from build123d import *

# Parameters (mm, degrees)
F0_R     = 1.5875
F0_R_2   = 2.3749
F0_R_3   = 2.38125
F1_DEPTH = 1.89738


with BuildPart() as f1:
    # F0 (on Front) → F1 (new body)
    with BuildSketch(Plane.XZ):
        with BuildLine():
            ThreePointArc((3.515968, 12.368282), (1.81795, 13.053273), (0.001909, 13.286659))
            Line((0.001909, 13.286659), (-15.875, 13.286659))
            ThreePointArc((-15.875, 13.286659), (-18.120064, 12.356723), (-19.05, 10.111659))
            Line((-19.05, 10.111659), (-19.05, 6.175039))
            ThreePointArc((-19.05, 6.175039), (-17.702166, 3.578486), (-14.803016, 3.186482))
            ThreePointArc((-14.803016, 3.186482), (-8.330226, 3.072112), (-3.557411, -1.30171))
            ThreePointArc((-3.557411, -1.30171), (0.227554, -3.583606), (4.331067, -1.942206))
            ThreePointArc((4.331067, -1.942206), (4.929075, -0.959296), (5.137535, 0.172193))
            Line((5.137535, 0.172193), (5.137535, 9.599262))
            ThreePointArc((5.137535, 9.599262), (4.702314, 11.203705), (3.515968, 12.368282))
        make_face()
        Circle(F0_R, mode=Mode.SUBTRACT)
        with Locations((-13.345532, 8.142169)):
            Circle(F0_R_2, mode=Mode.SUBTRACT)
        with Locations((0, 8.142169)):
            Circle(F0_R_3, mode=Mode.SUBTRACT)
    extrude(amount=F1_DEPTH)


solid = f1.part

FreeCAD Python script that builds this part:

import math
import FreeCAD as App
import Part
import Sketcher
from FreeCAD import Vector
Q = App.Units.Quantity

doc = App.newDocument("Part")
body = doc.addObject("PartDesign::Body", "Body")

# Sketch on XZ plane
sketch1 = body.newObject("Sketcher::SketchObject", "Sketch")
sketch1.AttachmentSupport = (doc.getObject("XZ_Plane"), [""])
sketch1.MapMode = "FlatFace"
sketch1.addGeometry(Part.ArcOfCircle(Part.Circle(Vector(0.001909, 6.10441, 0), Vector(0, 0, 1), 7.182249), math.radians(60.707391), math.radians(90.000003)), False)
sketch1.addGeometry(Part.LineSegment(Vector(0.001909, 13.286659, 0), Vector(-15.875, 13.286659, 0)), False)
sketch1.addGeometry(Part.ArcOfCircle(Part.Circle(Vector(-15.875, 10.111659, 0), Vector(0, 0, 1), 3.175), math.radians(90.000002), math.radians(179.999998)), False)
sketch1.addGeometry(Part.LineSegment(Vector(-19.05, 10.111659, 0), Vector(-19.05, 6.175039, 0)), False)
sketch1.addGeometry(Part.ArcOfCircle(Part.Circle(Vector(-15.875, 6.175039, 0), Vector(0, 0, 1), 3.175), math.radians(-179.999994), math.radians(-70.267285)), False)
sketch1.addGeometry(Part.ArcOfCircle(Part.Circle(Vector(-11.717598, -5.41528, 0), Vector(0, 0, 1), 9.138387), math.radians(26.752783), math.radians(109.732709)), False)
sketch1.addGeometry(Part.ArcOfCircle(Part.Circle(Vector(0.629149, 1.362512, 0), Vector(0, 0, 1), 4.962394), math.radians(-147.528346), math.radians(-41.755421)), False)
sketch1.addGeometry(Part.ArcOfCircle(Part.Circle(Vector(1.962537, 0.172192, 0), Vector(0, 0, 1), 3.174998), math.radians(-41.755438), math.radians(0.000022)), False)
sketch1.addGeometry(Part.LineSegment(Vector(5.137535, 0.172193, 0), Vector(5.137535, 9.599262, 0)), False)
sketch1.addGeometry(Part.ArcOfCircle(Part.Circle(Vector(1.962536, 9.599263, 0), Vector(0, 0, 1), 3.174999), math.radians(-0.000011), math.radians(60.707381)), False)
sketch1.addGeometry(Part.Circle(Vector(0, 0, 0), Vector(0, 0, 1), 1.5875), False)
sketch1.addGeometry(Part.Circle(Vector(-13.345532, 8.142169, 0), Vector(0, 0, 1), 2.3749), False)
sketch1.addGeometry(Part.Circle(Vector(0, 8.142169, 0), Vector(0, 0, 1), 2.38125), False)
sketch1.addConstraint(Sketcher.Constraint("Tangent", 0, 2, 1, 1))
sketch1.addConstraint(Sketcher.Constraint("Tangent", 1, 2, 2, 1))
sketch1.addConstraint(Sketcher.Constraint("Tangent", 2, 2, 3, 1))
sketch1.addConstraint(Sketcher.Constraint("Tangent", 3, 2, 4, 1))
sketch1.addConstraint(Sketcher.Constraint("Tangent", 4, 2, 5, 2))
sketch1.addConstraint(Sketcher.Constraint("Coincident", 5, 1, 6, 1))
sketch1.addConstraint(Sketcher.Constraint("Tangent", 6, 2, 7, 1))
sketch1.addConstraint(Sketcher.Constraint("Tangent", 7, 2, 8, 1))
sketch1.addConstraint(Sketcher.Constraint("Tangent", 8, 2, 9, 1))
sketch1.addConstraint(Sketcher.Constraint("Tangent", 9, 2, 0, 1))
sketch1.addConstraint(Sketcher.Constraint("Horizontal", 1))
sketch1.addConstraint(Sketcher.Constraint("Vertical", 3))
sketch1.addConstraint(Sketcher.Constraint("Vertical", 8))
sketch1.addConstraint(Sketcher.Constraint("Coincident", 10, 3, -1, 1))
sketch1.addConstraint(Sketcher.Constraint("Equal", 2, 4))
sketch1.addConstraint(Sketcher.Constraint("Equal", 4, 7))
sketch1.addConstraint(Sketcher.Constraint("Equal", 7, 9))
sketch1.addConstraint(Sketcher.Constraint("PointOnObject", 12, 3, -2))
sketch1.addConstraint(Sketcher.Constraint("Horizontal", 11, 3, 12, 3))
sketch1.addConstraint(Sketcher.Constraint("Diameter", 10, Q("0.125 in")))
sketch1.addConstraint(Sketcher.Constraint("Diameter", 11, Q("0.187 in")))
sketch1.addConstraint(Sketcher.Constraint("Diameter", 12, Q("0.1875 in")))
sketch1.addConstraint(Sketcher.Constraint("Radius", 2, Q("0.125 in")))
sketch1.addConstraint(Sketcher.Constraint("DistanceX", 2, 2, -1, 1, Q("0.75 in")))
sketch1.addConstraint(Sketcher.Constraint("Radius", 0, 7.182249))
sketch1.addConstraint(Sketcher.Constraint("DistanceY", 5, 3, -1, 1, Q("0.2132 in")))
sketch1.addConstraint(Sketcher.Constraint("Radius", 5, 9.138387))
sketch1.addConstraint(Sketcher.Constraint("Radius", 6, 4.962394))
sketch1.addConstraint(Sketcher.Constraint("DistanceX", 1, 2, 1, 1, 15.876909))
sketch1.addConstraint(Sketcher.Constraint("DistanceY", 3, 2, 3, 1, 3.93662))
sketch1.addConstraint(Sketcher.Constraint("DistanceY", 8, 1, 8, 2, 9.427069))
sketch1.addConstraint(Sketcher.Constraint("DistanceX", 5, 3, -1, 1, 11.717598))
sketch1.addConstraint(Sketcher.Constraint("DistanceY", 6, 3, 0, 3, 4.741898))
sketch1.addConstraint(Sketcher.Constraint("DistanceY", 5, 1, 7, 3, 1.473902))
sketch1.addConstraint(Sketcher.Constraint("DistanceY", -1, 1, 11, 3, 8.142169))
sketch1.addConstraint(Sketcher.Constraint("DistanceX", 4, 3, 11, 3, 2.529468))
pad1 = body.newObject("PartDesign::Pad", "Pad")
pad1.Profile = sketch1
pad1.Length = Q("0.0747 in")

doc.recompute()
